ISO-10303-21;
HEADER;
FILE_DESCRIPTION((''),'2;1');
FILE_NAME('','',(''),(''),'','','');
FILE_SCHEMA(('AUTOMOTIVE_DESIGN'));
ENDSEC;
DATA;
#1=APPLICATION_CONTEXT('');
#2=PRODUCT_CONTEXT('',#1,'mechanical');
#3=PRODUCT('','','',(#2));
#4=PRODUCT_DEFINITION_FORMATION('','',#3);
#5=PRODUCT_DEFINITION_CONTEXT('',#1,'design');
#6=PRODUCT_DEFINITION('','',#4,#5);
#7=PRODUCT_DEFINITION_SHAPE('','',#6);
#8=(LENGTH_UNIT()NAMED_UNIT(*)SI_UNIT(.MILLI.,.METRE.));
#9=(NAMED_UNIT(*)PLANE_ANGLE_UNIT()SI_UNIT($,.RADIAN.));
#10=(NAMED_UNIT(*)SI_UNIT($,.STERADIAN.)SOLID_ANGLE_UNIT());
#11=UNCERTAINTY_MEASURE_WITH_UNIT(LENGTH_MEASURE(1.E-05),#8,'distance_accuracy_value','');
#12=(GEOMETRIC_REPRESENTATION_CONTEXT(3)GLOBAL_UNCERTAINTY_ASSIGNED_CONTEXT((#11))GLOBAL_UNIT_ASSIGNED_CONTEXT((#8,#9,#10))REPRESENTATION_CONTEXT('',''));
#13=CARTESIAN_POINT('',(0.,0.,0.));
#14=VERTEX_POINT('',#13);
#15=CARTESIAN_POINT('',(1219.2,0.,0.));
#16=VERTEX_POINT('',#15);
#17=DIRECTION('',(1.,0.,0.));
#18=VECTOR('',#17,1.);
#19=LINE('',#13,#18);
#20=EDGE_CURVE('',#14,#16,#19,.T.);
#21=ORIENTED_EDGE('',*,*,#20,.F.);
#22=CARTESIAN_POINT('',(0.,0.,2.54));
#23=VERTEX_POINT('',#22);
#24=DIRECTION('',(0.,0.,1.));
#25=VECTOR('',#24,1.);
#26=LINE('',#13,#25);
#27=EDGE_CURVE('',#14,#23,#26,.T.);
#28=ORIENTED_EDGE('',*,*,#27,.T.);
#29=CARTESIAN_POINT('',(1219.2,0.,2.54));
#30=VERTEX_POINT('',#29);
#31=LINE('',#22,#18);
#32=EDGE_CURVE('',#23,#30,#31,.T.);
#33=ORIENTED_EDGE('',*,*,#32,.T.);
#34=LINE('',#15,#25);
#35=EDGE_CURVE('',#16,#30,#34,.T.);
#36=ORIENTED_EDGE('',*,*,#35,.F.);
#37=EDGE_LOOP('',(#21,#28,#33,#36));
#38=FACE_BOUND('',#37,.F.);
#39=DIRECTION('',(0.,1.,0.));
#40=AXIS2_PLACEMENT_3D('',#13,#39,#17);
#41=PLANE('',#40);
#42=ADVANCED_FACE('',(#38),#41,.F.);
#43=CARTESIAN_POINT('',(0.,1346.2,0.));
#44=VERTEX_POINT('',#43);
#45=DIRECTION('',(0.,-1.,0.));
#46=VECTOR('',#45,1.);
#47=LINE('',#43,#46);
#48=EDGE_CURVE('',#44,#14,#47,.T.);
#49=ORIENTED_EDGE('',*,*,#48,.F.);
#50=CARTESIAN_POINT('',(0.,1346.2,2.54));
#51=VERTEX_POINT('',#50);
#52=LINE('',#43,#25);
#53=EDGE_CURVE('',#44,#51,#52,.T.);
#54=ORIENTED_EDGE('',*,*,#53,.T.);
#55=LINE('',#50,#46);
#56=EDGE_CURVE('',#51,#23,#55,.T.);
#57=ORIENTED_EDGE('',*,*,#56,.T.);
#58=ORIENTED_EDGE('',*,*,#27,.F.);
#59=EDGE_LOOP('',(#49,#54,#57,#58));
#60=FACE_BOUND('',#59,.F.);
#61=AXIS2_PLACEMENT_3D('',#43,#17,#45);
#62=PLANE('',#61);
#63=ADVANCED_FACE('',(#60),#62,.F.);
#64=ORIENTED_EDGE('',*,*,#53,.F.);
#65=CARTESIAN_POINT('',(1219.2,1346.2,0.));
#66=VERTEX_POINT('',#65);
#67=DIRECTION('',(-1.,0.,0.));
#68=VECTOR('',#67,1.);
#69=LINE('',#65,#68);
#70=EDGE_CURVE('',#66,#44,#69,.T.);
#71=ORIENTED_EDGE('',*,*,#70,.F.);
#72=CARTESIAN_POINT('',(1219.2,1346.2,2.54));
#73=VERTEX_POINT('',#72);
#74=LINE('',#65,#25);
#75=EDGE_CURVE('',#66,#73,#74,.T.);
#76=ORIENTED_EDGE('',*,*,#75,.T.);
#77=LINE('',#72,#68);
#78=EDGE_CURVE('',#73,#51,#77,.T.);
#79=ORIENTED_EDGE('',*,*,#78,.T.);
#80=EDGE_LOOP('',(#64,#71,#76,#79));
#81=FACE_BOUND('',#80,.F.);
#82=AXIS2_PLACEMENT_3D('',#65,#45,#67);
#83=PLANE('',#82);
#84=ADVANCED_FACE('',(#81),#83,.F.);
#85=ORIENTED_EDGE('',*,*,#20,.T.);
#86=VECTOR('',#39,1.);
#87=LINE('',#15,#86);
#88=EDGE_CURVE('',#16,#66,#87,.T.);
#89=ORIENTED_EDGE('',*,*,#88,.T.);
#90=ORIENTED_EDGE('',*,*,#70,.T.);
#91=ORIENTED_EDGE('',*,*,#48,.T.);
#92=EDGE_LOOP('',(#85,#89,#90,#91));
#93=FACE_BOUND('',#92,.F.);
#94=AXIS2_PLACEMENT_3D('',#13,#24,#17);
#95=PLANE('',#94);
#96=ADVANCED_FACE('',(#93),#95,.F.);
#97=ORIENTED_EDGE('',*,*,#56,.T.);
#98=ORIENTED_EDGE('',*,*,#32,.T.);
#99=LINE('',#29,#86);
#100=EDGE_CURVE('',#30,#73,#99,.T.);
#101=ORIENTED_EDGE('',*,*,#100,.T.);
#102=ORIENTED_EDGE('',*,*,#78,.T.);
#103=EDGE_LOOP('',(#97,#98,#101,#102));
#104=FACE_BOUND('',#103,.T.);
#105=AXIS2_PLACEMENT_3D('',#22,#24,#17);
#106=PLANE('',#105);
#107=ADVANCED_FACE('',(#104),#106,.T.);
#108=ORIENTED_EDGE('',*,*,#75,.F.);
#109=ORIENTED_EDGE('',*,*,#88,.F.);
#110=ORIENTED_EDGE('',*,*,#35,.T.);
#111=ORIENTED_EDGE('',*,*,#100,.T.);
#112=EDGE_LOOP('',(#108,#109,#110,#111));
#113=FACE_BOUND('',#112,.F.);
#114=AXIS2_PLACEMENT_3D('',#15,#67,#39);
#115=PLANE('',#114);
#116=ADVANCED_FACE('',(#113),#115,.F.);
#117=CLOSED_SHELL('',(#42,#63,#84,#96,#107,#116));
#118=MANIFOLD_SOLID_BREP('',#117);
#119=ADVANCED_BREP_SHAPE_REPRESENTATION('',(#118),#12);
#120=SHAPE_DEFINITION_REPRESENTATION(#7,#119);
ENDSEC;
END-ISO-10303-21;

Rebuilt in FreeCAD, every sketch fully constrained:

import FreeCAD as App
import Part
import Sketcher

V = App.Vector
Q = App.Units.Quantity


def add_polygon(sketch, points):
    """Adds a closed chain of lines whose ends are joined by coincident constraints."""
    first, n = sketch.GeometryCount, len(points)
    for a, b in zip(points, points[1:] + points[:1]):
        sketch.addGeometry(Part.LineSegment(App.Vector(*a, 0), App.Vector(*b, 0)), False)
    for i in range(n):
        sketch.addConstraint(Sketcher.Constraint("Coincident", first + i, 2, first + (i + 1) % n, 1))

doc = App.newDocument("Part")
params = doc.addObject("Spreadsheet::Sheet", "Params")
for row, (alias, value) in enumerate([
    ("sketch1_width", "48 in"),
    ("sketch1_height", "53 in"),
    ("pad1_length", "0.1 in"),
], start=1):
    params.set(f"A{row}", alias)
    params.set(f"B{row}", "=" + value)
    params.setAlias(f"B{row}", alias)

body = doc.addObject("PartDesign::Body", "Body")

# Sketch on XY plane
sketch1 = body.newObject("Sketcher::SketchObject", "Sketch")
sketch1.AttachmentSupport = (doc.getObject("XY_Plane"), [""])
sketch1.MapMode = "FlatFace"
add_polygon(sketch1, [(1219, 0), (1219, 1346), (0, 1346), (0, 0)])  # lines 0-3
sketch1.addConstraint([
    Sketcher.Constraint("Vertical", 0),
    Sketcher.Constraint("Horizontal", 1),
    Sketcher.Constraint("Vertical", 2),
    Sketcher.Constraint("Horizontal", 3),
    Sketcher.Constraint("Coincident", 2, 2, -1, 1),
    Sketcher.Constraint("DistanceX", 1, 2, 1, 1, Q("48 in")),
    Sketcher.Constraint("DistanceY", 0, 1, 0, 2, Q("53 in")),
])
sketch1.setExpression("Constraints[9]", "Params.sketch1_width")
sketch1.setExpression("Constraints[10]", "Params.sketch1_height")
pad1 = body.newObject("PartDesign::Pad", "Pad")
pad1.Profile = sketch1
pad1.setExpression("Length", "Params.pad1_length")

doc.recompute()
